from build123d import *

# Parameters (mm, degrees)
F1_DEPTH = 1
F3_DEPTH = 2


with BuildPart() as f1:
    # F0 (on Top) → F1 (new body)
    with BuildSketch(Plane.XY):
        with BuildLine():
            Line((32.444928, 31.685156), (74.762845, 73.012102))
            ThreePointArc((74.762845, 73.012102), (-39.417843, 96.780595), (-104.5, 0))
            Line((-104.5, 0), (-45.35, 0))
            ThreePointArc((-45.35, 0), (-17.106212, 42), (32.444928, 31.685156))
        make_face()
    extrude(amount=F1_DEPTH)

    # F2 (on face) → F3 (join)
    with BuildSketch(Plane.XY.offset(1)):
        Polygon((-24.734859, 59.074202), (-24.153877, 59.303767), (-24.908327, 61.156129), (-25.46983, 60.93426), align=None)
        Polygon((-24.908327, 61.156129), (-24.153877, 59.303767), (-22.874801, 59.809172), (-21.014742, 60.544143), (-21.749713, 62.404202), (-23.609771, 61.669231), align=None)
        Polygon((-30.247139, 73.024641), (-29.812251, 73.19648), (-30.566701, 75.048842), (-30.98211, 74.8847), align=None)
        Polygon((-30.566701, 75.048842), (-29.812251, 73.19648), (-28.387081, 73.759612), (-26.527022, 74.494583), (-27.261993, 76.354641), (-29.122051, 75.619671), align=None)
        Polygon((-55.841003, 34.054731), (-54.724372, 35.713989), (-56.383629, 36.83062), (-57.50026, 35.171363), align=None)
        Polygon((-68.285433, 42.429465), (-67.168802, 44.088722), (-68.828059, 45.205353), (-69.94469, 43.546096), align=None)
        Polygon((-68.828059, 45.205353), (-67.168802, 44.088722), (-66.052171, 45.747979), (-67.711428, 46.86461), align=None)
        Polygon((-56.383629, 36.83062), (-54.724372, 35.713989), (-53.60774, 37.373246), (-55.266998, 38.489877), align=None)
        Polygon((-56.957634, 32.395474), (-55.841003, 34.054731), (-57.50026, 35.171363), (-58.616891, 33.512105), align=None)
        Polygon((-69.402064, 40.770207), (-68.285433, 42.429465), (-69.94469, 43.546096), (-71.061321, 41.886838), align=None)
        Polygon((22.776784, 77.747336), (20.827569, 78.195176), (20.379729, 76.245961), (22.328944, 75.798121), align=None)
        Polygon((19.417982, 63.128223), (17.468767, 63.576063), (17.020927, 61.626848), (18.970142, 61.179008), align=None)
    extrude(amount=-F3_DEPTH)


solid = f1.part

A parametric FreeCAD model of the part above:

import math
import FreeCAD as App
import Part
import Sketcher

V = App.Vector


def add_polygon(sketch, points):
    """Adds a closed chain of lines whose ends are joined by coincident constraints."""
    first, n = sketch.GeometryCount, len(points)
    for a, b in zip(points, points[1:] + points[:1]):
        sketch.addGeometry(Part.LineSegment(App.Vector(*a, 0), App.Vector(*b, 0)), False)
    for i in range(n):
        sketch.addConstraint(Sketcher.Constraint("Coincident", first + i, 2, first + (i + 1) % n, 1))

doc = App.newDocument("Part")
body = doc.addObject("PartDesign::Body", "Body")

# Sketch on XY plane
sketch1 = body.newObject("Sketcher::SketchObject", "Sketch")
sketch1.AttachmentSupport = (doc.getObject("XY_Plane"), [""])
sketch1.MapMode = "FlatFace"
sketch1.addGeometry([
    Part.LineSegment(V(32, 32, 0), V(75, 73, 0)),
    Part.ArcOfCircle(Part.Circle(V(0, 0, 0), V(0, 0, 1), 105), math.radians(44), math.radians(180)),
    Part.LineSegment(V(-104, 0, 0), V(-45, 0, 0)),
    Part.ArcOfCircle(Part.Circle(V(0, 0, 0), V(0, 0, 1), 45), math.radians(44), math.radians(180)),
], False)
sketch1.addConstraint([
    Sketcher.Constraint("Coincident", 0, 2, 1, 1),
    Sketcher.Constraint("Coincident", 1, 2, 2, 1),
    Sketcher.Constraint("Coincident", 2, 2, 3, 2),
    Sketcher.Constraint("Coincident", 3, 1, 0, 1),
    Sketcher.Constraint("Horizontal", 2),
    Sketcher.Constraint("Coincident", 1, 3, -1, 1),
    Sketcher.Constraint("Coincident", 3, 3, -1, 1),
    Sketcher.Constraint("PointOnObject", 1, 2, -1),
    Sketcher.Constraint("Radius", 1, 104.5),
    Sketcher.Constraint("Radius", 3, 45.35),
    Sketcher.Constraint("DistanceY", -1, 1, 0, 2, 73.012102),
    Sketcher.Constraint("DistanceX", -1, 1, 3, 1, 32.444928),
])
pad1 = body.newObject("PartDesign::Pad", "Pad")
pad1.Profile = sketch1
pad1.Length = 1

# Sketch on XY plane
sketch2 = body.newObject("Sketcher::SketchObject", "Sketch001")
sketch2.AttachmentSupport = (doc.getObject("XY_Plane"), [""])
sketch2.MapMode = "FlatFace"
sketch2.AttachmentOffset = App.Placement(V(0, 0, 1), App.Rotation())
add_polygon(sketch2, [(-24.73, 59.07), (-24.15, 59.3), (-22.87, 59.81), (-21.01, 60.54), (-21.75, 62.4), (-23.61, 61.67), (-24.91, 61.16), (-25.47, 60.93)])  # lines 0-7
add_polygon(sketch2, [(-30.25, 73.02), (-29.81, 73.2), (-28.39, 73.76), (-26.53, 74.49), (-27.26, 76.35), (-29.12, 75.62), (-30.57, 75.05), (-30.98, 74.88)])  # lines 8-15
add_polygon(sketch2, [(-55.84, 34.05), (-54.72, 35.71), (-53.61, 37.37), (-55.27, 38.49), (-57.5, 35.17), (-58.62, 33.51), (-56.96, 32.4)])  # lines 16-22
add_polygon(sketch2, [(-68.29, 42.43), (-66.05, 45.75), (-67.71, 46.86), (-69.94, 43.55), (-71.06, 41.89), (-69.4, 40.77)])  # lines 23-28
add_polygon(sketch2, [(22.78, 77.75), (20.83, 78.2), (20.38, 76.25), (22.33, 75.8)])  # lines 29-32
add_polygon(sketch2, [(19.42, 63.13), (17.47, 63.58), (17.02, 61.63), (18.97, 61.18)])  # lines 33-36
sketch2.addConstraint([
    Sketcher.Constraint("Parallel", 0, 1),
    Sketcher.Constraint("Parallel", 1, 2),
    Sketcher.Constraint("Perpendicular", 2, 3),
    Sketcher.Constraint("Perpendicular", 3, 4),
    Sketcher.Constraint("Parallel", 4, 5),
    Sketcher.Constraint("Parallel", 5, 6),
    Sketcher.Constraint("Perpendicular", 6, 7),
    Sketcher.Constraint("Perpendicular", 7, 8),
    Sketcher.Constraint("Parallel", 8, 9),
    Sketcher.Constraint("Parallel", 9, 10),
    Sketcher.Constraint("Perpendicular", 10, 11),
    Sketcher.Constraint("Perpendicular", 11, 12),
    Sketcher.Constraint("Parallel", 12, 13),
    Sketcher.Constraint("Parallel", 13, 14),
    Sketcher.Constraint("Perpendicular", 14, 15),
    Sketcher.Constraint("Parallel", 16, 17),
    Sketcher.Constraint("Perpendicular", 17, 18),
    Sketcher.Constraint("Perpendicular", 18, 19),
    Sketcher.Constraint("Parallel", 19, 20),
    Sketcher.Constraint("Perpendicular", 20, 21),
    Sketcher.Constraint("Perpendicular", 21, 22),
    Sketcher.Constraint("Parallel", 22, 23),
    Sketcher.Constraint("Perpendicular", 23, 24),
    Sketcher.Constraint("Perpendicular", 24, 25),
    Sketcher.Constraint("Parallel", 25, 26),
    Sketcher.Constraint("Perpendicular", 26, 27),
    Sketcher.Constraint("Perpendicular", 27, 28),
    Sketcher.Constraint("Perpendicular", 29, 30),
    Sketcher.Constraint("Perpendicular", 30, 31),
    Sketcher.Constraint("Perpendicular", 31, 32),
    Sketcher.Constraint("Perpendicular", 32, 33),
    Sketcher.Constraint("Perpendicular", 33, 34),
    Sketcher.Constraint("Perpendicular", 34, 35),
    Sketcher.Constraint("Perpendicular", 35, 36),
    Sketcher.Constraint("Equal", 2, 3),
    Sketcher.Constraint("Equal", 3, 4),
    Sketcher.Constraint("Equal", 7, 10),
    Sketcher.Constraint("Equal", 10, 11),
    Sketcher.Constraint("Equal", 11, 12),
    Sketcher.Constraint("Equal", 15, 16),
    Sketcher.Constraint("Equal", 16, 17),
    Sketcher.Constraint("Equal", 17, 18),
    Sketcher.Constraint("Equal", 18, 20),
    Sketcher.Constraint("Equal", 21, 22),
    Sketcher.Constraint("Equal", 19, 23),
    Sketcher.Constraint("Equal", 22, 24),
    Sketcher.Constraint("Equal", 23, 25),
    Sketcher.Constraint("Equal", 24, 26),
    Sketcher.Constraint("Equal", 28, 29),
    Sketcher.Constraint("Equal", 29, 30),
    Sketcher.Constraint("Equal", 32, 33),
    Sketcher.Constraint("Equal", 33, 34),
    Sketcher.Constraint("Distance", 2, 2.0),
    Sketcher.Constraint("DistanceX", 1, 2, -1, 1, 22.874801),
    Sketcher.Constraint("DistanceY", -1, 1, 3, 2, 62.404202),
    Sketcher.Constraint("DistanceX", 13, 2, -1, 1, 30.566701),
    Sketcher.Constraint("DistanceY", -1, 1, 14, 2, 74.8847),
    Sketcher.Constraint("DistanceX", 8, 2, 12, 2, 0.6902),
    Sketcher.Constraint("DistanceY", 13, 2, 11, 2, 1.305799),
    Sketcher.Constraint("DistanceY", 15, 2, 13, 2, 2.024201),
    Sketcher.Constraint("DistanceX", 19, 2, 7, 2, 32.765401),
    Sketcher.Constraint("DistanceX", 23, 2, 16, 2, 11.327799),
    Sketcher.Constraint("DistanceX", 4, 2, 30, 2, 43.9895),
    Sketcher.Constraint("Distance", 13, 1.553338),
    Sketcher.Constraint("DistanceY", -1, 1, 5, 2, 61.156129),
    Sketcher.Constraint("DistanceX", 6, 2, -1, 1, 25.46983),
    Sketcher.Constraint("DistanceY", -1, 1, 16, 2, 35.713989),
    Sketcher.Constraint("DistanceX", 17, 2, -1, 1, 53.60774),
    Sketcher.Constraint("DistanceY", -1, 1, 23, 2, 45.747979),
    Sketcher.Constraint("DistanceX", -1, 1, 29, 2, 20.827569),
    Sketcher.Constraint("DistanceY", -1, 1, 30, 2, 76.245961),
    Sketcher.Constraint("DistanceY", -1, 1, 34, 2, 61.626848),
    Sketcher.Constraint("DistanceX", -1, 1, 35, 2, 18.970142),
    Sketcher.Constraint("DistanceX", 5, 2, 0, 2, 0.75445),
])
pad2 = body.newObject("PartDesign::Pad", "Pad001")
pad2.Profile = sketch2
pad2.Length = 2
pad2.Reversed = True

doc.recompute()
